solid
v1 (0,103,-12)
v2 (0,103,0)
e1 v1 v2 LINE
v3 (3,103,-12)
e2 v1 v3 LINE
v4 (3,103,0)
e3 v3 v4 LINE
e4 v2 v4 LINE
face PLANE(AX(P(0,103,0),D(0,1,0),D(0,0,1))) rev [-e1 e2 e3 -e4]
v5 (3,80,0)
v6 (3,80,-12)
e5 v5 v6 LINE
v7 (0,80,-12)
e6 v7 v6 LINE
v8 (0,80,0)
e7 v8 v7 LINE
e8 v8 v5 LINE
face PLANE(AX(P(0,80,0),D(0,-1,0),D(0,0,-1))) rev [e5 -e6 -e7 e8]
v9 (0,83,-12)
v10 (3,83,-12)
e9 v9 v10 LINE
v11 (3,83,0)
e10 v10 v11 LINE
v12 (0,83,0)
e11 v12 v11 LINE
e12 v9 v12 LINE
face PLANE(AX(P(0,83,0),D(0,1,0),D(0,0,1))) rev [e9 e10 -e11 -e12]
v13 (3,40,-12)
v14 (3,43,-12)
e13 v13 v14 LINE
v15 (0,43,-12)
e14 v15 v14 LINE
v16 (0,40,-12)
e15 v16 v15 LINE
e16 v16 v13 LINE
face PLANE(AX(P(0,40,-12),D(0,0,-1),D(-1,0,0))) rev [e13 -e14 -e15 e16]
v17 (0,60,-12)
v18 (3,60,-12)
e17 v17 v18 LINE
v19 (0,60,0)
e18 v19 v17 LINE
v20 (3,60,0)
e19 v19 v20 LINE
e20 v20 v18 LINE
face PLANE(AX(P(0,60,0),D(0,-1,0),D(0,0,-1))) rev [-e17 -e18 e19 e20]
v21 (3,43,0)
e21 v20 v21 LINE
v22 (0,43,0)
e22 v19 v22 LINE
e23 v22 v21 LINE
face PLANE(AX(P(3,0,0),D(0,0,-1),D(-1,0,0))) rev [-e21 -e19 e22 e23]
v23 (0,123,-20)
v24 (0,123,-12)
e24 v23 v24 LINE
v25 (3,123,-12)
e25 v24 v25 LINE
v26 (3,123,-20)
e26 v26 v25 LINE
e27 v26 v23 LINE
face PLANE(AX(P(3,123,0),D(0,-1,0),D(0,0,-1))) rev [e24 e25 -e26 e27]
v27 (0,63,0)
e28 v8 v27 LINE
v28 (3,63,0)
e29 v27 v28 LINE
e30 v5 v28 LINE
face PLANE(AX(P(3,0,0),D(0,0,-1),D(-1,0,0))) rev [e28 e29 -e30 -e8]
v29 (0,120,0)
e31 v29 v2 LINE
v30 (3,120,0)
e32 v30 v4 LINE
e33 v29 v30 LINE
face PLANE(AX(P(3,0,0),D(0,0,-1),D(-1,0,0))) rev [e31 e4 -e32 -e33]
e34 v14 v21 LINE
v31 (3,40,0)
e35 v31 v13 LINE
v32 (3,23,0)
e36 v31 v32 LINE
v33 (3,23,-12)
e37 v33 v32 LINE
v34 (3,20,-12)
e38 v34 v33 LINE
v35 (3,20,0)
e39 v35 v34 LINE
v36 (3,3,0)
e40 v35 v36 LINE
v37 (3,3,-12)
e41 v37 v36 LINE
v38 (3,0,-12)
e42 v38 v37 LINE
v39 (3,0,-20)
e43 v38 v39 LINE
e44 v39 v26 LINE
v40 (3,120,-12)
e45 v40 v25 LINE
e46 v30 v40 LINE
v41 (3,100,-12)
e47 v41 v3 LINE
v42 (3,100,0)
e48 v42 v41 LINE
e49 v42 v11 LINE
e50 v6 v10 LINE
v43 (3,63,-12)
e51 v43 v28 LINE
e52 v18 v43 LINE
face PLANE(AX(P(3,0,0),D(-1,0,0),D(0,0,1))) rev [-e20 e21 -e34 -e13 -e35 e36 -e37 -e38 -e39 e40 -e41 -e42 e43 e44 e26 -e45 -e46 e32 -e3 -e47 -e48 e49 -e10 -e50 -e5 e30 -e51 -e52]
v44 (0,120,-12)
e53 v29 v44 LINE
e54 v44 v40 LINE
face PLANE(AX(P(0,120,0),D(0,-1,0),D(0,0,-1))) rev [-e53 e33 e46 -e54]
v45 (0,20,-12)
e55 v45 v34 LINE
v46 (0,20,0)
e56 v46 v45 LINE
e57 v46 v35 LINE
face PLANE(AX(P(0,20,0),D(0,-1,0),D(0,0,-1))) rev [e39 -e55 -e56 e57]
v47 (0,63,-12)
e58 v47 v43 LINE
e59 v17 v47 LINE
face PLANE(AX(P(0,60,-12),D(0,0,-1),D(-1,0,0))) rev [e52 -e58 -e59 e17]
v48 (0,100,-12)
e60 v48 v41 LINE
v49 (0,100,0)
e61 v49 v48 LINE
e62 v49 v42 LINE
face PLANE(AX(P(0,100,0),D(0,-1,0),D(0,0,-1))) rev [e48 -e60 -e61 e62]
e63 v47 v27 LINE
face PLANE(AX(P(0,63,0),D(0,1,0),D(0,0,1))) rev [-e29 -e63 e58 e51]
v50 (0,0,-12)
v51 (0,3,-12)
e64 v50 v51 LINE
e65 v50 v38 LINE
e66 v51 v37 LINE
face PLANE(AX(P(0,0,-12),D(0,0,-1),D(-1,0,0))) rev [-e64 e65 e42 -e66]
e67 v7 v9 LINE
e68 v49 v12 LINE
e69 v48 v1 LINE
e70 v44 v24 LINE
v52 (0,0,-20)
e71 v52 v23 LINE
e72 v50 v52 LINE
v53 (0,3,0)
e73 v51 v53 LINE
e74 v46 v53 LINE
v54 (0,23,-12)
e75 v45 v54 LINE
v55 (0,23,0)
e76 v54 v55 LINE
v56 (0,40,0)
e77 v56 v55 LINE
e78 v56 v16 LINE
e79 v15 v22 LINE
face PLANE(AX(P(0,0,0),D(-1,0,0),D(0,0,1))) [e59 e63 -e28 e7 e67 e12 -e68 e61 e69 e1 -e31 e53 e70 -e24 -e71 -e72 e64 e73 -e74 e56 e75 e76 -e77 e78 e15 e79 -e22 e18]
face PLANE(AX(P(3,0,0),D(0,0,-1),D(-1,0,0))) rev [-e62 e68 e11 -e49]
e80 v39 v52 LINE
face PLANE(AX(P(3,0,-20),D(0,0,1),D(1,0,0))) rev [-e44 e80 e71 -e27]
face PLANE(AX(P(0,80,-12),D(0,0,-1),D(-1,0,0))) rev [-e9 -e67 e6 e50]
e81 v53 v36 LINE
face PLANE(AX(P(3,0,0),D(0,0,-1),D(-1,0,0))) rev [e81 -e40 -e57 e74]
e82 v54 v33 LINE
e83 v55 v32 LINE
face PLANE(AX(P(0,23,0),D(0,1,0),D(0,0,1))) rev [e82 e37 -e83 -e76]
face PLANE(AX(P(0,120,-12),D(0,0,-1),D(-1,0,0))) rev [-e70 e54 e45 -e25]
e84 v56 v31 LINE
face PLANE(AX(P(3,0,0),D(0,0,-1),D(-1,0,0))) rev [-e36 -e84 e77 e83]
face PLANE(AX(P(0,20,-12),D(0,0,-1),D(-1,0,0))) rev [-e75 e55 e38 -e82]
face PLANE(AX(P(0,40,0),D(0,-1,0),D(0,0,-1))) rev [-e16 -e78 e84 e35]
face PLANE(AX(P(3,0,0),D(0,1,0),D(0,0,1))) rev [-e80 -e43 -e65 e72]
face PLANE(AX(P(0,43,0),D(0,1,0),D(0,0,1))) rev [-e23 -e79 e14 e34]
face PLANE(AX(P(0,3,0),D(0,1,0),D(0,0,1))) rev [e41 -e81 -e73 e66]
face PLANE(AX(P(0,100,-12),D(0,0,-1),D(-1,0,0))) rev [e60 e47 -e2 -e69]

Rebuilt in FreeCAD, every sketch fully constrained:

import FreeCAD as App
import Part
import Sketcher
Q = App.Units.Quantity


def add_polygon(sketch, points):
    """Adds a closed chain of lines whose ends are joined by coincident constraints."""
    first, n = sketch.GeometryCount, len(points)
    for a, b in zip(points, points[1:] + points[:1]):
        sketch.addGeometry(Part.LineSegment(App.Vector(*a, 0), App.Vector(*b, 0)), False)
    for i in range(n):
        sketch.addConstraint(Sketcher.Constraint("Coincident", first + i, 2, first + (i + 1) % n, 1))

doc = App.newDocument("Part")
body = doc.addObject("PartDesign::Body", "Body")

# Sketch on YZ plane
sketch1 = body.newObject("Sketcher::SketchObject", "Sketch")
sketch1.AttachmentSupport = (doc.getObject("YZ_Plane"), [""])
sketch1.MapMode = "FlatFace"
add_polygon(sketch1, [(123, 0), (0, 0), (0, -20), (123, -20)])  # lines 0-3
sketch1.addConstraint(Sketcher.Constraint("Horizontal", 0))
sketch1.addConstraint(Sketcher.Constraint("Vertical", 1))
sketch1.addConstraint(Sketcher.Constraint("Horizontal", 2))
sketch1.addConstraint(Sketcher.Constraint("Vertical", 3))
sketch1.addConstraint(Sketcher.Constraint("Coincident", 0, 2, -1, 1))
sketch1.addConstraint(Sketcher.Constraint("DistanceX", 0, 2, 0, 1, Q("123 mm")))
sketch1.addConstraint(Sketcher.Constraint("DistanceY", 1, 2, 1, 1, Q("20 mm")))
pad1 = body.newObject("PartDesign::Pad", "Pad")
pad1.Profile = sketch1
pad1.Length = 3

# Sketch on YZ plane
sketch2 = body.newObject("Sketcher::SketchObject", "Sketch001")
sketch2.AttachmentSupport = (doc.getObject("YZ_Plane"), [""])
sketch2.MapMode = "FlatFace"
sketch2.AttachmentOffset = App.Placement(App.Vector(0, 0, 3), App.Rotation())
add_polygon(sketch2, [(3, 0), (0, 0), (0, -12), (3, -12)])  # lines 0-3
sketch2.addConstraint(Sketcher.Constraint("Horizontal", 0))
sketch2.addConstraint(Sketcher.Constraint("Vertical", 1))
sketch2.addConstraint(Sketcher.Constraint("Horizontal", 2))
sketch2.addConstraint(Sketcher.Constraint("Vertical", 3))
sketch2.addConstraint(Sketcher.Constraint("Coincident", 0, 2, -1, 1))
sketch2.addConstraint(Sketcher.Constraint("DistanceX", 0, 2, 0, 1, Q("3 mm")))
sketch2.addConstraint(Sketcher.Constraint("DistanceY", 1, 2, 1, 1, Q("12 mm")))
pocket1 = body.newObject("PartDesign::Pocket", "Pocket")
pocket1.Profile = sketch2
pocket1.Type = "ThroughAll"
doc.recompute()

linearpattern = body.newObject("PartDesign::LinearPattern", "LinearPattern")
linearpattern.Originals = [pocket1]
linearpattern.Direction = (doc.getObject("Y_Axis"), [""])
linearpattern.Mode = "offset"
linearpattern.Offset = 20
linearpattern.Occurrences = 7
body.Tip = linearpattern

doc.recompute()
